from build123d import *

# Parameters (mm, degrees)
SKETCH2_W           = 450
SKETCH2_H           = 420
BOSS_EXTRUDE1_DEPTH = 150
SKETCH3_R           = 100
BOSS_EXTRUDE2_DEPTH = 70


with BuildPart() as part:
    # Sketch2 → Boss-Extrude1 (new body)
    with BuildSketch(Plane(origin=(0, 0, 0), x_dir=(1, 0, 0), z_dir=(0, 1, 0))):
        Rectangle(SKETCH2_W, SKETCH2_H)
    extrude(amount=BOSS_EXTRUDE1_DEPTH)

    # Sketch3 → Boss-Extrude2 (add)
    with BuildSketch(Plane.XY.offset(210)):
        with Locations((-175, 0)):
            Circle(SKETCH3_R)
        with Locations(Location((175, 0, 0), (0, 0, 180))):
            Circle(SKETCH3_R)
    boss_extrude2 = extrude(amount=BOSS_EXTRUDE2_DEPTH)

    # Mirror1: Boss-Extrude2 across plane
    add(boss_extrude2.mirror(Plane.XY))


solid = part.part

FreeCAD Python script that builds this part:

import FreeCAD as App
import Part
import Sketcher
from FreeCAD import Vector
Q = App.Units.Quantity

doc = App.newDocument("Part")
body = doc.addObject("PartDesign::Body", "Body")

sketch1 = body.newObject("Sketcher::SketchObject", "Sketch")
sketch1.AttachmentSupport = (doc.getObject("XZ_Plane"), [""])
sketch1.MapMode = "FlatFace"
sketch1.addGeometry([
    Part.LineSegment(Vector(-225, -210, 0), Vector(-225, 210, 0)),
    Part.LineSegment(Vector(-225, 210, 0), Vector(225, 210, 0)),
    Part.LineSegment(Vector(225, 210, 0), Vector(225, -210, 0)),
    Part.LineSegment(Vector(225, -210, 0), Vector(-225, -210, 0)),
], False)
sketch1.addConstraint([
    Sketcher.Constraint("Coincident", 0, 2, 1, 1),
    Sketcher.Constraint("Coincident", 1, 2, 2, 1),
    Sketcher.Constraint("Coincident", 2, 2, 3, 1),
    Sketcher.Constraint("Coincident", 3, 2, 0, 1),
    Sketcher.Constraint("Vertical", 0),
    Sketcher.Constraint("Horizontal", 1),
    Sketcher.Constraint("Vertical", 2),
    Sketcher.Constraint("Horizontal", 3),
    Sketcher.Constraint("Symmetric", 0, 2, 2, 2, -1, 1),
    Sketcher.Constraint("DistanceX", 1, 1, 1, 2, Q("450 mm")),
    Sketcher.Constraint("DistanceY", 0, 1, 0, 2, Q("420 mm")),
])
pad1 = body.newObject("PartDesign::Pad", "Pad")
pad1.Profile = sketch1
pad1.Length = 150
pad1.Reversed = True

sketch2 = body.newObject("Sketcher::SketchObject", "Sketch001")
sketch2.AttachmentSupport = (doc.getObject("XY_Plane"), [""])
sketch2.MapMode = "FlatFace"
sketch2.AttachmentOffset = App.Placement(Vector(0, 0, 210), App.Rotation())
sketch2.addGeometry([
    Part.Circle(Vector(-175, 0, 0), Vector(0, 0, 1), 100),
    Part.Circle(Vector(175, 0, 0), Vector(0, 0, 1), 100),
], False)
sketch2.addConstraint([
    Sketcher.Constraint("Equal", 0, 1),
    Sketcher.Constraint("Symmetric", 0, 3, 1, 3, -1, 1),
    Sketcher.Constraint("PointOnObject", 0, 3, -1),
    Sketcher.Constraint("Diameter", 0, Q("200 mm")),
    Sketcher.Constraint("DistanceX", 0, 3, -1, 1, Q("175 mm")),
])
pad2 = body.newObject("PartDesign::Pad", "Pad001")
pad2.Profile = sketch2
pad2.Length = 70
doc.recompute()

mirrored = body.newObject("PartDesign::Mirrored", "Mirrored")
mirrored.Originals = [pad2]
mirrored.MirrorPlane = (doc.getObject("XY_Plane"), [""])
body.Tip = mirrored

doc.recompute()
